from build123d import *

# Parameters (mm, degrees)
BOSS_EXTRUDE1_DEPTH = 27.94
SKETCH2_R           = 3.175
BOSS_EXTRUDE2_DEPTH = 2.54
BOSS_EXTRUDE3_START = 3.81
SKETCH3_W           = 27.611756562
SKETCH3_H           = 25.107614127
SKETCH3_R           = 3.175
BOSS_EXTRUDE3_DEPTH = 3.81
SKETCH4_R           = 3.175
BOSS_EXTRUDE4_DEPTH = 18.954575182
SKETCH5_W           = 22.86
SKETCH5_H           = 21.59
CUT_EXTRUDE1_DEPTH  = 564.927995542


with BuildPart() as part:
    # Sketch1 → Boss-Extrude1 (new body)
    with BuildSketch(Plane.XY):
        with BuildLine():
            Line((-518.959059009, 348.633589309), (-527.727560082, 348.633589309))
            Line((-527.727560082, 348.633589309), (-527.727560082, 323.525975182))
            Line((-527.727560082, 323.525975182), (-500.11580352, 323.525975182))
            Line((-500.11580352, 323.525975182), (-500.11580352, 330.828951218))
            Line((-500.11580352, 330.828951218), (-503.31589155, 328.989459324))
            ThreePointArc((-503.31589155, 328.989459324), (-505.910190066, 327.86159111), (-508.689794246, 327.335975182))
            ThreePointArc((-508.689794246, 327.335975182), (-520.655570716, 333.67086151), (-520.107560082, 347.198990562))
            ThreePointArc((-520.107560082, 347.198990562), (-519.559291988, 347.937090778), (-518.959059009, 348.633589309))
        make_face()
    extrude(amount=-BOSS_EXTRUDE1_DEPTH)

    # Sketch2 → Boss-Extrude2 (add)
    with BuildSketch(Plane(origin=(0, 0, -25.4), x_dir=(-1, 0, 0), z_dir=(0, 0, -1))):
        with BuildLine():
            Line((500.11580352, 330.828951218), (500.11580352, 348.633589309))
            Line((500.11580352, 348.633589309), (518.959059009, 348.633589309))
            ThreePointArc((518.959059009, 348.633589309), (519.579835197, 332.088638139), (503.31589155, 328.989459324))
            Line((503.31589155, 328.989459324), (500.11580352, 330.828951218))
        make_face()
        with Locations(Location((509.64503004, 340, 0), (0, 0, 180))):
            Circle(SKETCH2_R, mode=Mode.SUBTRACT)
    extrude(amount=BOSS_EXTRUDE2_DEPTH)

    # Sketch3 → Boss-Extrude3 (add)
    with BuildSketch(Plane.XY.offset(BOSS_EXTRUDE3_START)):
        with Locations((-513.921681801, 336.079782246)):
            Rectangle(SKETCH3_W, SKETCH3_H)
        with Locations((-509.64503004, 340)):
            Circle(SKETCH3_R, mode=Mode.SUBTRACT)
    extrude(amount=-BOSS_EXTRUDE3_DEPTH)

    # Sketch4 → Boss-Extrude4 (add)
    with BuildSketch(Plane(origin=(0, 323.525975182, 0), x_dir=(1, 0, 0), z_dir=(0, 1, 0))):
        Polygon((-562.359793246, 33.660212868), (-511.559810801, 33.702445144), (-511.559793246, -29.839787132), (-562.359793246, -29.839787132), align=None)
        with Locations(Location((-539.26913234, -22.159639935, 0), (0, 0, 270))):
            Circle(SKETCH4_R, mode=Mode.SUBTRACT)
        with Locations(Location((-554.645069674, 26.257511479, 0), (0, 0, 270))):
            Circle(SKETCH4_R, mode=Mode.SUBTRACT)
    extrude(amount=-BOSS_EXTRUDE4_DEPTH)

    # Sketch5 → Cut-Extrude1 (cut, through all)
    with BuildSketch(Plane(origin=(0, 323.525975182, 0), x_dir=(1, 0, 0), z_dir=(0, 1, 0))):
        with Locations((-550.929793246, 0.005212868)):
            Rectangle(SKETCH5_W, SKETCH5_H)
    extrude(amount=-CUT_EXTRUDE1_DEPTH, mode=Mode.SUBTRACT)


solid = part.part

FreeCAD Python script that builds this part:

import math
import FreeCAD as App
import Part
import Sketcher
from FreeCAD import Vector
Q = App.Units.Quantity

doc = App.newDocument("Part")
body = doc.addObject("PartDesign::Body", "Body")

# Sketch on XY plane
sketch1 = body.newObject("Sketcher::SketchObject", "Sketch")
sketch1.AttachmentSupport = (doc.getObject("XY_Plane"), [""])
sketch1.MapMode = "FlatFace"
sketch1.addGeometry(Part.LineSegment(Vector(-519, 348.6, 0), Vector(-527.7, 348.6, 0)), False)
sketch1.addGeometry(Part.LineSegment(Vector(-527.7, 348.6, 0), Vector(-527.7, 323.5, 0)), False)
sketch1.addGeometry(Part.LineSegment(Vector(-527.7, 323.5, 0), Vector(-500.1, 323.5, 0)), False)
sketch1.addGeometry(Part.LineSegment(Vector(-500.1, 323.5, 0), Vector(-500.1, 330.8, 0)), False)
sketch1.addGeometry(Part.LineSegment(Vector(-500.1, 330.8, 0), Vector(-503.3, 329, 0)), False)
sketch1.addGeometry(Part.ArcOfCircle(Part.Circle(Vector(-509.6, 340, 0), Vector(0, 0, 1), 12.7), math.radians(-86), math.radians(-60)), False)
sketch1.addGeometry(Part.ArcOfCircle(Part.Circle(Vector(-509.6, 340, 0), Vector(0, 0, 1), 12.7), math.radians(145), math.radians(274)), False)
sketch1.addGeometry(Part.ArcOfCircle(Part.Circle(Vector(-509.6, 340, 0), Vector(0, 0, 1), 12.7), math.radians(137.17), math.radians(145.47)), False)
sketch1.addConstraint(Sketcher.Constraint("Coincident", 0, 2, 1, 1))
sketch1.addConstraint(Sketcher.Constraint("Coincident", 1, 2, 2, 1))
sketch1.addConstraint(Sketcher.Constraint("Coincident", 2, 2, 3, 1))
sketch1.addConstraint(Sketcher.Constraint("Coincident", 3, 2, 4, 1))
sketch1.addConstraint(Sketcher.Constraint("Tangent", 4, 2, 5, 2))
sketch1.addConstraint(Sketcher.Constraint("Tangent", 5, 1, 6, 2))
sketch1.addConstraint(Sketcher.Constraint("Tangent", 6, 1, 7, 2))
sketch1.addConstraint(Sketcher.Constraint("Coincident", 7, 1, 0, 1))
sketch1.addConstraint(Sketcher.Constraint("Horizontal", 0))
sketch1.addConstraint(Sketcher.Constraint("Vertical", 1))
sketch1.addConstraint(Sketcher.Constraint("Horizontal", 2))
sketch1.addConstraint(Sketcher.Constraint("Vertical", 3))
sketch1.addConstraint(Sketcher.Constraint("Coincident", 7, 3, 5, 3))
sketch1.addConstraint(Sketcher.Constraint("Radius", 5, Q("0.5 in")))
sketch1.addConstraint(Sketcher.Constraint("DistanceX", 0, 2, 6, 1, Q("0.3 in")))
sketch1.addConstraint(Sketcher.Constraint("DistanceY", 2, 2, 5, 1, Q("0.15 in")))
sketch1.addConstraint(Sketcher.Constraint("DistanceX", 0, 2, 0, 1, 8.768501))
sketch1.addConstraint(Sketcher.Constraint("DistanceY", -1, 1, 5, 3, 340.0))
sketch1.addConstraint(Sketcher.Constraint("DistanceY", 6, 1, 0, 2, 1.434599))
sketch1.addConstraint(Sketcher.Constraint("Distance", 4, 3.69111))
sketch1.addConstraint(Sketcher.Constraint("DistanceX", 2, 1, 2, 2, 27.611757))
sketch1.addConstraint(Sketcher.Constraint("DistanceY", 1, 2, 1, 1, 25.107614))
sketch1.addConstraint(Sketcher.Constraint("DistanceX", 5, 3, -1, 1, 509.64503))
pad1 = body.newObject("PartDesign::Pad", "Pad")
pad1.Profile = sketch1
pad1.Length = Q("1.1 in")
pad1.Reversed = True

# Sketch on XY plane
sketch2 = body.newObject("Sketcher::SketchObject", "Sketch001")
sketch2.AttachmentSupport = (doc.getObject("XY_Plane"), [""])
sketch2.MapMode = "FlatFace"
sketch2.AttachmentOffset = App.Placement(Vector(0, 0, -1 * 25.4), App.Rotation())
sketch2.addGeometry(Part.LineSegment(Vector(-500.115804, 348.633589, 0), Vector(-500.115804, 330.828951, 0)), False)
sketch2.addGeometry(Part.LineSegment(Vector(-500.115804, 330.828951, 0), Vector(-503.315892, 328.989459, 0)), False)
sketch2.addGeometry(Part.ArcOfCircle(Part.Circle(Vector(-509.64503, 340, 0), Vector(0, 0, 1), 12.7), math.radians(137.171188), math.radians(299.891383)), False)
sketch2.addGeometry(Part.LineSegment(Vector(-518.959059, 348.633589, 0), Vector(-500.115804, 348.633589, 0)), False)
sketch2.addGeometry(Part.Circle(Vector(-509.64503, 340, 0), Vector(0, 0, 1), 3.175), False)
sketch2.addConstraint(Sketcher.Constraint("Coincident", 0, 2, 1, 1))
sketch2.addConstraint(Sketcher.Constraint("Tangent", 1, 2, 2, 2))
sketch2.addConstraint(Sketcher.Constraint("Coincident", 2, 1, 3, 1))
sketch2.addConstraint(Sketcher.Constraint("Coincident", 3, 2, 0, 1))
sketch2.addConstraint(Sketcher.Constraint("Vertical", 0))
sketch2.addConstraint(Sketcher.Constraint("Horizontal", 3))
sketch2.addConstraint(Sketcher.Constraint("Coincident", 4, 3, 2, 3))
sketch2.addConstraint(Sketcher.Constraint("Radius", 2, Q("0.5 in")))
sketch2.addConstraint(Sketcher.Constraint("Diameter", 4, Q("0.25 in")))
sketch2.addConstraint(Sketcher.Constraint("DistanceY", 0, 2, 0, 1, 17.804638))
sketch2.addConstraint(Sketcher.Constraint("DistanceY", -1, 1, 2, 3, 340.0))
sketch2.addConstraint(Sketcher.Constraint("Distance", 1, 3.69111))
sketch2.addConstraint(Sketcher.Constraint("DistanceX", 3, 1, 3, 2, 18.843255))
sketch2.addConstraint(Sketcher.Constraint("DistanceX", 2, 3, -1, 1, 509.64503))
pad2 = body.newObject("PartDesign::Pad", "Pad001")
pad2.Profile = sketch2
pad2.Length = Q("0.1 in")
pad2.Reversed = True

# Sketch on XY plane
sketch3 = body.newObject("Sketcher::SketchObject", "Sketch002")
sketch3.AttachmentSupport = (doc.getObject("XY_Plane"), [""])
sketch3.MapMode = "FlatFace"
sketch3.AttachmentOffset = App.Placement(Vector(0, 0, 0.15 * 25.4), App.Rotation())
sketch3.addGeometry(Part.LineSegment(Vector(-527.7, 348.6, 0), Vector(-527.7, 323.5, 0)), False)
sketch3.addGeometry(Part.LineSegment(Vector(-527.7, 323.5, 0), Vector(-500.1, 323.5, 0)), False)
sketch3.addGeometry(Part.LineSegment(Vector(-500.1, 323.5, 0), Vector(-500.1, 348.6, 0)), False)
sketch3.addGeometry(Part.LineSegment(Vector(-500.1, 348.6, 0), Vector(-527.7, 348.6, 0)), False)
sketch3.addGeometry(Part.Circle(Vector(-509.6, 340, 0), Vector(0, 0, 1), 3.2), False)
sketch3.addConstraint(Sketcher.Constraint("Coincident", 0, 2, 1, 1))
sketch3.addConstraint(Sketcher.Constraint("Coincident", 1, 2, 2, 1))
sketch3.addConstraint(Sketcher.Constraint("Coincident", 2, 2, 3, 1))
sketch3.addConstraint(Sketcher.Constraint("Coincident", 3, 2, 0, 1))
sketch3.addConstraint(Sketcher.Constraint("Vertical", 0))
sketch3.addConstraint(Sketcher.Constraint("Horizontal", 1))
sketch3.addConstraint(Sketcher.Constraint("Vertical", 2))
sketch3.addConstraint(Sketcher.Constraint("Horizontal", 3))
sketch3.addConstraint(Sketcher.Constraint("Diameter", 4, Q("0.25 in")))
sketch3.addConstraint(Sketcher.Constraint("DistanceY", -1, 1, 4, 3, 340.0))
sketch3.addConstraint(Sketcher.Constraint("DistanceX", 1, 1, 1, 2, 27.611757))
sketch3.addConstraint(Sketcher.Constraint("DistanceY", 0, 2, 0, 1, 25.107614))
sketch3.addConstraint(Sketcher.Constraint("DistanceX", 4, 3, -1, 1, 509.64503))
sketch3.addConstraint(Sketcher.Constraint("DistanceX", 0, 2, -1, 1, 527.72756))
sketch3.addConstraint(Sketcher.Constraint("DistanceY", -1, 1, 2, 2, 348.633589))
pad3 = body.newObject("PartDesign::Pad", "Pad002")
pad3.Profile = sketch3
pad3.Length = Q("0.15 in")
pad3.Reversed = True

# Sketch on XZ plane
sketch4 = body.newObject("Sketcher::SketchObject", "Sketch003")
sketch4.AttachmentSupport = (doc.getObject("XZ_Plane"), [""])
sketch4.MapMode = "FlatFace"
sketch4.AttachmentOffset = App.Placement(Vector(0, 0, -323.525975), App.Rotation())
sketch4.addGeometry(Part.LineSegment(Vector(-511.6, -33.7, 0), Vector(-562.4, -33.7, 0)), False)
sketch4.addGeometry(Part.LineSegment(Vector(-562.4, -33.7, 0), Vector(-562.4, 29.8, 0)), False)
sketch4.addGeometry(Part.LineSegment(Vector(-562.4, 29.8, 0), Vector(-511.6, 29.8, 0)), False)
sketch4.addGeometry(Part.LineSegment(Vector(-511.6, 29.8, 0), Vector(-511.6, -33.7, 0)), False)
sketch4.addGeometry(Part.Circle(Vector(-539.3, 22.2, 0), Vector(0, 0, 1), 3.2), False)
sketch4.addGeometry(Part.Circle(Vector(-554.6, -26.3, 0), Vector(0, 0, 1), 3.2), False)
sketch4.addConstraint(Sketcher.Constraint("Coincident", 0, 2, 1, 1))
sketch4.addConstraint(Sketcher.Constraint("Coincident", 1, 2, 2, 1))
sketch4.addConstraint(Sketcher.Constraint("Coincident", 2, 2, 3, 1))
sketch4.addConstraint(Sketcher.Constraint("Coincident", 3, 2, 0, 1))
sketch4.addConstraint(Sketcher.Constraint("Vertical", 1))
sketch4.addConstraint(Sketcher.Constraint("Horizontal", 2))
sketch4.addConstraint(Sketcher.Constraint("Equal", 4, 5))
sketch4.addConstraint(Sketcher.Constraint("Diameter", 4, Q("0.25 in")))
sketch4.addConstraint(Sketcher.Constraint("DistanceX", 2, 1, 2, 2, Q("2 in")))
sketch4.addConstraint(Sketcher.Constraint("Distance", 0, Q("2 in")))
sketch4.addConstraint(Sketcher.Constraint("DistanceY", 1, 1, 1, 2, Q("2.5 in")))
sketch4.addConstraint(Sketcher.Constraint("DistanceY", 0, 2, 5, 3, 7.402701))
sketch4.addConstraint(Sketcher.Constraint("DistanceY", -1, 1, 4, 3, 22.15964))
sketch4.addConstraint(Sketcher.Constraint("DistanceX", 5, 3, -1, 1, 554.64507))
sketch4.addConstraint(Sketcher.Constraint("DistanceY", 5, 3, -1, 1, 26.257511))
sketch4.addConstraint(Sketcher.Constraint("DistanceX", 3, 2, -1, 1, 511.559811))
sketch4.addConstraint(Sketcher.Constraint("DistanceX", 0, 2, 4, 3, 23.090661))
sketch4.addConstraint(Sketcher.Constraint("Distance", 3, 63.542232))
pad4 = body.newObject("PartDesign::Pad", "Pad003")
pad4.Profile = sketch4
pad4.Length = 18.954575

# Sketch on XZ plane
sketch5 = body.newObject("Sketcher::SketchObject", "Sketch004")
sketch5.AttachmentSupport = (doc.getObject("XZ_Plane"), [""])
sketch5.MapMode = "FlatFace"
sketch5.AttachmentOffset = App.Placement(Vector(0, 0, -323.525975), App.Rotation())
sketch5.addGeometry(Part.LineSegment(Vector(-562, -11, 0), Vector(-562, 11, 0)), False)
sketch5.addGeometry(Part.LineSegment(Vector(-562, 11, 0), Vector(-539, 11, 0)), False)
sketch5.addGeometry(Part.LineSegment(Vector(-539, 11, 0), Vector(-539, -11, 0)), False)
sketch5.addGeometry(Part.LineSegment(Vector(-539, -11, 0), Vector(-562, -11, 0)), False)
sketch5.addConstraint(Sketcher.Constraint("Coincident", 0, 2, 1, 1))
sketch5.addConstraint(Sketcher.Constraint("Coincident", 1, 2, 2, 1))
sketch5.addConstraint(Sketcher.Constraint("Coincident", 2, 2, 3, 1))
sketch5.addConstraint(Sketcher.Constraint("Coincident", 3, 2, 0, 1))
sketch5.addConstraint(Sketcher.Constraint("Vertical", 0))
sketch5.addConstraint(Sketcher.Constraint("Horizontal", 1))
sketch5.addConstraint(Sketcher.Constraint("Vertical", 2))
sketch5.addConstraint(Sketcher.Constraint("Horizontal", 3))
sketch5.addConstraint(Sketcher.Constraint("DistanceX", 1, 1, 1, 2, Q("0.9 in")))
sketch5.addConstraint(Sketcher.Constraint("DistanceY", 0, 1, 0, 2, Q("0.85 in")))
sketch5.addConstraint(Sketcher.Constraint("DistanceX", 0, 2, -1, 1, 562.359793))
sketch5.addConstraint(Sketcher.Constraint("DistanceY", -1, 1, 0, 2, 10.789787))
pocket1 = body.newObject("PartDesign::Pocket", "Pocket")
pocket1.Profile = sketch5
pocket1.Type = "ThroughAll"
pocket1.Reversed = True

doc.recompute()
